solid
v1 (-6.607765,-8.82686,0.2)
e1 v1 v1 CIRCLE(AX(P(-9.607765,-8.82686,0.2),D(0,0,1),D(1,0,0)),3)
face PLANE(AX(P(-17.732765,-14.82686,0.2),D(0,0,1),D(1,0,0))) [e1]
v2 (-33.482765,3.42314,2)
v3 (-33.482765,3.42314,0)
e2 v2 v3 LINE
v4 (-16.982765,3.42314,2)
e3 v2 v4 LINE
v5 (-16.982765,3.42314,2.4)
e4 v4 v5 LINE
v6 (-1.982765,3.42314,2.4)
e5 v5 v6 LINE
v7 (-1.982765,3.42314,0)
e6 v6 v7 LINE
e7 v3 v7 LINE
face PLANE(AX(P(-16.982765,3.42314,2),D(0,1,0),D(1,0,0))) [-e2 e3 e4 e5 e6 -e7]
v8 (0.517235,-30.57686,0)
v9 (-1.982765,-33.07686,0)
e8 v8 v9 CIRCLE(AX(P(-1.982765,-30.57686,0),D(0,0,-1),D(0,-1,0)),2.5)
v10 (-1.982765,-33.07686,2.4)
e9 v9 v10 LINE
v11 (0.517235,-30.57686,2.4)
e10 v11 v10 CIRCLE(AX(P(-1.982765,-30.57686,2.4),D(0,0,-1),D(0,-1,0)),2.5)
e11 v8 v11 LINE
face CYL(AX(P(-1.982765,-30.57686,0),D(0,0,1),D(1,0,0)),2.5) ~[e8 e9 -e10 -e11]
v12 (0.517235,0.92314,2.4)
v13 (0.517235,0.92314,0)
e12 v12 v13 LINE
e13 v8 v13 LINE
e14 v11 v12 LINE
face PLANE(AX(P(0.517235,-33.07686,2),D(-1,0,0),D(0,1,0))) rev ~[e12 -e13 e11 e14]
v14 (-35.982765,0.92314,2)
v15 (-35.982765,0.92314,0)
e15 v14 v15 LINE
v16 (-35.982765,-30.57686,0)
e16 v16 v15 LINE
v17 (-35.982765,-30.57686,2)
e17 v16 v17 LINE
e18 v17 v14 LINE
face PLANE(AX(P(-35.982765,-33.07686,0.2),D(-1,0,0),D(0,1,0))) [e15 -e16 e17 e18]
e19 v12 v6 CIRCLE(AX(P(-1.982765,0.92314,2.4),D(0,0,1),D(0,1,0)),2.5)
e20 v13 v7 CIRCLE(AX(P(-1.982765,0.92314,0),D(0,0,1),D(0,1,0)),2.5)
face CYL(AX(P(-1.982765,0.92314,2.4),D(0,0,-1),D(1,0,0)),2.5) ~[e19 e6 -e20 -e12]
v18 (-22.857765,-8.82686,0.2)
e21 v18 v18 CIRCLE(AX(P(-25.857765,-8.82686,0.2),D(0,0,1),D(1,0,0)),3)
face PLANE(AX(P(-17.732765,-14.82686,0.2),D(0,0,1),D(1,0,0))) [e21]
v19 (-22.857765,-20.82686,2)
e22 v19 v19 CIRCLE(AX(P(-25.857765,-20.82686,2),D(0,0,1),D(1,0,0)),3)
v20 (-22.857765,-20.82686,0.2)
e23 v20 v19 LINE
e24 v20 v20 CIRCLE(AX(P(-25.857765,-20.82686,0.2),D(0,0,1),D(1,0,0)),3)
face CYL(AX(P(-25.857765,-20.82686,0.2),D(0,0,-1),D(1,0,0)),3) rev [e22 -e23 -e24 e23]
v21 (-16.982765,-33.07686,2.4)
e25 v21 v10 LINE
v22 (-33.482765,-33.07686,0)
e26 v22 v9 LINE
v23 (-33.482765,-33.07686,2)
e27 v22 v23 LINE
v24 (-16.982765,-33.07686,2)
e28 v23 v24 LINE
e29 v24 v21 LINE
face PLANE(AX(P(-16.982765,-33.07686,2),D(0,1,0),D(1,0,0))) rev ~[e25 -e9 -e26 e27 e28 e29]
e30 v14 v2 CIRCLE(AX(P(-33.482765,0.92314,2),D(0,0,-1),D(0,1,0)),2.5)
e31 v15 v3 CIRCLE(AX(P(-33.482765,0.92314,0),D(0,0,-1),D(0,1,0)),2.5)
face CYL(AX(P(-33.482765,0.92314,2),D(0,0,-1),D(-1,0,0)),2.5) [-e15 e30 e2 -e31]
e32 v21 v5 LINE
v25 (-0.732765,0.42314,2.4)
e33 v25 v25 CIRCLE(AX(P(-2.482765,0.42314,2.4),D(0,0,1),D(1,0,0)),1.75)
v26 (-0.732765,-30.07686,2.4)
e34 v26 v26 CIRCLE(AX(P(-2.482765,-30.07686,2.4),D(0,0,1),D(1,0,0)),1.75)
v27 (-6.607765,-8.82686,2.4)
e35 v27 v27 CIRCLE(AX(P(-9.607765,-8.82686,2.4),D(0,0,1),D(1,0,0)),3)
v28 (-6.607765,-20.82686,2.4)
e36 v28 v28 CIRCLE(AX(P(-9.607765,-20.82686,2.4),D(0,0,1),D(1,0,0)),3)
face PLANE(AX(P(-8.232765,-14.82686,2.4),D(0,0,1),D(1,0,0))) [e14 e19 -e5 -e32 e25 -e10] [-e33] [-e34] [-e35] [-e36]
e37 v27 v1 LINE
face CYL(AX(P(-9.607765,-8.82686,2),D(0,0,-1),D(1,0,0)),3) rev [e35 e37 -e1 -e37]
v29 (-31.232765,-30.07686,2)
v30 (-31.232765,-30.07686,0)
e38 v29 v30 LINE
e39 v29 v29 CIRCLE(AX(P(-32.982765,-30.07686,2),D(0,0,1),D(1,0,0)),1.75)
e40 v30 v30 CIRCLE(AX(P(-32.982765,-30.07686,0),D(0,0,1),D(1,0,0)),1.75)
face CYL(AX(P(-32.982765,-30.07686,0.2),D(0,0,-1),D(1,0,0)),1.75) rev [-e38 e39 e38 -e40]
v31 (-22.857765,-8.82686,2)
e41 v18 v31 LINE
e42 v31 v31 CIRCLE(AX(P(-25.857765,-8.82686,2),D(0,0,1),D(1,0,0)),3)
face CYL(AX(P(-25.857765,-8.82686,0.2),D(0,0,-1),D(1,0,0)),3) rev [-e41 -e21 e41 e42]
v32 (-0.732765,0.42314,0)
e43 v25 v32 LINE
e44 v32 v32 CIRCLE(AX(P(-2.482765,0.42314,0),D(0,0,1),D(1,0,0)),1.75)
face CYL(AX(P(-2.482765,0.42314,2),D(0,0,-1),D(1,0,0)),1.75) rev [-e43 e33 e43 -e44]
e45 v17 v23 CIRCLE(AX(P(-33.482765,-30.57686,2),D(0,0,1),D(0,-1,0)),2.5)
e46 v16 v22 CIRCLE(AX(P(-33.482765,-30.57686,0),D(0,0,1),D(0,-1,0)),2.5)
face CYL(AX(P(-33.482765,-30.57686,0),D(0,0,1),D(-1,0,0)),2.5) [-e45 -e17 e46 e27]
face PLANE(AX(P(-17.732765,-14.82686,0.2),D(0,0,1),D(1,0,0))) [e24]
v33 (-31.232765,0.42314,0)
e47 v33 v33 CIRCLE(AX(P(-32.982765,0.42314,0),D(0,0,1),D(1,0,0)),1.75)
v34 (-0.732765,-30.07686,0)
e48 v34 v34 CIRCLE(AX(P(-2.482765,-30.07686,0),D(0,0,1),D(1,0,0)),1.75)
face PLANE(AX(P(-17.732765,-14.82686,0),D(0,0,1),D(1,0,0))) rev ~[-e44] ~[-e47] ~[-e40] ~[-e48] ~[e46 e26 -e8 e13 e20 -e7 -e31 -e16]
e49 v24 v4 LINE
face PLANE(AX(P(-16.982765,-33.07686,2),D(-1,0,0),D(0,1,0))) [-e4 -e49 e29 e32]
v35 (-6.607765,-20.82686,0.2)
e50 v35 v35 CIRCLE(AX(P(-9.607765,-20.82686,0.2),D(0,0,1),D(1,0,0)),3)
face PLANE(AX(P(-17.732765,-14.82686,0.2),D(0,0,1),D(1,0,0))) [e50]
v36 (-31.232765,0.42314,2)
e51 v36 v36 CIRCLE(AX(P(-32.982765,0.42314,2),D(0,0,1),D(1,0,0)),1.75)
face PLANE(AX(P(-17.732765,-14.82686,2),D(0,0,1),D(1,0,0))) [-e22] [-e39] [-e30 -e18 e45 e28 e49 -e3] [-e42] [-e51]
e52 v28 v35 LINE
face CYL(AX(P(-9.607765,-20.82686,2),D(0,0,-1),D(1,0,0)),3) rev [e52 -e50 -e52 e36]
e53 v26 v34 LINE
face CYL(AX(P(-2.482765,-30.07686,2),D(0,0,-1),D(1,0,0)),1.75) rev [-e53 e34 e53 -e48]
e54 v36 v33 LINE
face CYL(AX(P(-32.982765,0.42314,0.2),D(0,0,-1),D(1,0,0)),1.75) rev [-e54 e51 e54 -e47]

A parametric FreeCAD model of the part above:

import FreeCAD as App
import Part
import Sketcher
from FreeCAD import Vector


def edges_at(feature, points):
    """Names of the edges that pass closest to the given points."""
    edges = feature.Shape.Edges
    near = lambda p: min(range(len(edges)), key=lambda i: edges[i].distToShape(Part.Vertex(*p))[0])
    return sorted({f"Edge{near(p) + 1}" for p in points})

doc = App.newDocument("Part")
params = doc.addObject("Spreadsheet::Sheet", "Params")
for row, (alias, value) in enumerate([
    ("sketch1_diameter", "3.5 mm"),
    ("sketch1_width", "36.5 mm"),
    ("pad1_length", "0.2 mm"),
    ("sketch2_diameter", "6 mm"),
    ("sketch2_diameter2", "3.5 mm"),
    ("sketch2_width", "36.5 mm"),
    ("pad2_length", "1.8 mm"),
    ("sketch3_diameter", "6 mm"),
    ("sketch3_diameter2", "3.5 mm"),
    ("sketch3_width", "17.5 mm"),
    ("sketch3_height", "36.5 mm"),
    ("pad3_length", "0.4 mm"),
    ("fillet_radius", "2.5 mm"),
], start=1):
    params.set(f"A{row}", alias)
    params.set(f"B{row}", "=" + value)
    params.setAlias(f"B{row}", alias)

body = doc.addObject("PartDesign::Body", "Body")

# Sketch on XY plane
sketch1 = body.newObject("Sketcher::SketchObject", "Sketch")
sketch1.AttachmentSupport = (doc.getObject("XY_Plane"), [""])
sketch1.MapMode = "FlatFace"
sketch1.addGeometry(Part.LineSegment(Vector(-35.982765, 3.42314, 0), Vector(-35.982765, -33.07686, 0)), False)
sketch1.addGeometry(Part.LineSegment(Vector(-35.982765, -33.07686, 0), Vector(0.517235, -33.07686, 0)), False)
sketch1.addGeometry(Part.LineSegment(Vector(0.517235, -33.07686, 0), Vector(0.517235, 3.42314, 0)), False)
sketch1.addGeometry(Part.LineSegment(Vector(0.517235, 3.42314, 0), Vector(-35.982765, 3.42314, 0)), False)
sketch1.addGeometry(Part.Circle(Vector(-32.982765, -30.07686, 0), Vector(0, 0, 1), 1.75), False)
sketch1.addGeometry(Part.Circle(Vector(-2.482765, -30.07686, 0), Vector(0, 0, 1), 1.75), False)
sketch1.addGeometry(Part.Circle(Vector(-32.982765, 0.42314, 0), Vector(0, 0, 1), 1.75), False)
sketch1.addGeometry(Part.Circle(Vector(-2.482765, 0.42314, 0), Vector(0, 0, 1), 1.75), False)
sketch1.addConstraint(Sketcher.Constraint("Coincident", 0, 2, 1, 1))
sketch1.addConstraint(Sketcher.Constraint("Coincident", 1, 2, 2, 1))
sketch1.addConstraint(Sketcher.Constraint("Coincident", 2, 2, 3, 1))
sketch1.addConstraint(Sketcher.Constraint("Coincident", 3, 2, 0, 1))
sketch1.addConstraint(Sketcher.Constraint("Vertical", 0))
sketch1.addConstraint(Sketcher.Constraint("Horizontal", 1))
sketch1.addConstraint(Sketcher.Constraint("Vertical", 2))
sketch1.addConstraint(Sketcher.Constraint("Horizontal", 3))
sketch1.addConstraint(Sketcher.Constraint("Equal", 4, 5))
sketch1.addConstraint(Sketcher.Constraint("Equal", 5, 6))
sketch1.addConstraint(Sketcher.Constraint("Equal", 6, 7))
sketch1.addConstraint(Sketcher.Constraint("Horizontal", 4, 3, 5, 3))
sketch1.addConstraint(Sketcher.Constraint("Horizontal", 6, 3, 7, 3))
sketch1.addConstraint(Sketcher.Constraint("Vertical", 4, 3, 6, 3))
sketch1.addConstraint(Sketcher.Constraint("Vertical", 5, 3, 7, 3))
sketch1.addConstraint(Sketcher.Constraint("Equal", 3, 0))
sketch1.addConstraint(Sketcher.Constraint("Diameter", 4, 3.5))
sketch1.addConstraint(Sketcher.Constraint("DistanceX", 1, 1, 1, 2, 36.5))
sketch1.addConstraint(Sketcher.Constraint("DistanceX", 0, 2, 4, 3, 3.0))
sketch1.addConstraint(Sketcher.Constraint("DistanceY", 0, 2, 4, 3, 3.0))
sketch1.addConstraint(Sketcher.Constraint("DistanceX", 5, 3, 1, 2, 3.0))
sketch1.addConstraint(Sketcher.Constraint("DistanceY", 7, 3, 2, 2, 3.0))
sketch1.addConstraint(Sketcher.Constraint("DistanceY", 4, 3, -1, 1, 30.07686))
sketch1.addConstraint(Sketcher.Constraint("DistanceX", 4, 3, -1, 1, 32.982765))
sketch1.setExpression("Constraints[16]", "Params.sketch1_diameter")
sketch1.setExpression("Constraints[17]", "Params.sketch1_width")
pad1 = body.newObject("PartDesign::Pad", "Pad")
pad1.Profile = sketch1
pad1.setExpression("Length", "Params.pad1_length")

# Sketch on XY plane
sketch2 = body.newObject("Sketcher::SketchObject", "Sketch001")
sketch2.AttachmentSupport = (doc.getObject("XY_Plane"), [""])
sketch2.MapMode = "FlatFace"
sketch2.AttachmentOffset = App.Placement(Vector(0, 0, 0.2), App.Rotation())
sketch2.addGeometry(Part.LineSegment(Vector(-35.982765, 3.42314, 0), Vector(-35.982765, -33.07686, 0)), False)
sketch2.addGeometry(Part.LineSegment(Vector(-35.982765, -33.07686, 0), Vector(0.517235, -33.07686, 0)), False)
sketch2.addGeometry(Part.LineSegment(Vector(0.517235, -33.07686, 0), Vector(0.517235, 3.42314, 0)), False)
sketch2.addGeometry(Part.LineSegment(Vector(0.517235, 3.42314, 0), Vector(-35.982765, 3.42314, 0)), False)
sketch2.addGeometry(Part.Circle(Vector(-32.982765, -30.07686, 0), Vector(0, 0, 1), 1.75), False)
sketch2.addGeometry(Part.Circle(Vector(-25.857765, -20.82686, 0), Vector(0, 0, 1), 3), False)
sketch2.addGeometry(Part.Circle(Vector(-2.482765, -30.07686, 0), Vector(0, 0, 1), 1.75), False)
sketch2.addGeometry(Part.Circle(Vector(-9.607765, -20.82686, 0), Vector(0, 0, 1), 3), False)
sketch2.addGeometry(Part.Circle(Vector(-25.857765, -8.82686, 0), Vector(0, 0, 1), 3), False)
sketch2.addGeometry(Part.Circle(Vector(-32.982765, 0.42314, 0), Vector(0, 0, 1), 1.75), False)
sketch2.addGeometry(Part.Circle(Vector(-9.607765, -8.82686, 0), Vector(0, 0, 1), 3), False)
sketch2.addGeometry(Part.Circle(Vector(-2.482765, 0.42314, 0), Vector(0, 0, 1), 1.75), False)
sketch2.addConstraint(Sketcher.Constraint("Coincident", 0, 2, 1, 1))
sketch2.addConstraint(Sketcher.Constraint("Coincident", 1, 2, 2, 1))
sketch2.addConstraint(Sketcher.Constraint("Coincident", 2, 2, 3, 1))
sketch2.addConstraint(Sketcher.Constraint("Coincident", 3, 2, 0, 1))
sketch2.addConstraint(Sketcher.Constraint("Vertical", 0))
sketch2.addConstraint(Sketcher.Constraint("Horizontal", 1))
sketch2.addConstraint(Sketcher.Constraint("Vertical", 2))
sketch2.addConstraint(Sketcher.Constraint("Horizontal", 3))
sketch2.addConstraint(Sketcher.Constraint("Equal", 4, 6))
sketch2.addConstraint(Sketcher.Constraint("Equal", 5, 7))
sketch2.addConstraint(Sketcher.Constraint("Equal", 7, 8))
sketch2.addConstraint(Sketcher.Constraint("Equal", 6, 9))
sketch2.addConstraint(Sketcher.Constraint("Equal", 8, 10))
sketch2.addConstraint(Sketcher.Constraint("Equal", 9, 11))
sketch2.addConstraint(Sketcher.Constraint("Horizontal", 4, 3, 6, 3))
sketch2.addConstraint(Sketcher.Constraint("Horizontal", 5, 3, 7, 3))
sketch2.addConstraint(Sketcher.Constraint("Horizontal", 8, 3, 10, 3))
sketch2.addConstraint(Sketcher.Constraint("Horizontal", 9, 3, 11, 3))
sketch2.addConstraint(Sketcher.Constraint("Vertical", 5, 3, 8, 3))
sketch2.addConstraint(Sketcher.Constraint("Vertical", 4, 3, 9, 3))
sketch2.addConstraint(Sketcher.Constraint("Vertical", 7, 3, 10, 3))
sketch2.addConstraint(Sketcher.Constraint("Vertical", 6, 3, 11, 3))
sketch2.addConstraint(Sketcher.Constraint("Equal", 3, 0))
sketch2.addConstraint(Sketcher.Constraint("Diameter", 5, 6.0))
sketch2.addConstraint(Sketcher.Constraint("Diameter", 4, 3.5))
sketch2.addConstraint(Sketcher.Constraint("DistanceX", 1, 1, 1, 2, 36.5))
sketch2.addConstraint(Sketcher.Constraint("DistanceY", 5, 3, 8, 3, 12.0))
sketch2.addConstraint(Sketcher.Constraint("DistanceX", 0, 2, 4, 3, 3.0))
sketch2.addConstraint(Sketcher.Constraint("DistanceY", 0, 2, 4, 3, 3.0))
sketch2.addConstraint(Sketcher.Constraint("DistanceX", 6, 3, 1, 2, 3.0))
sketch2.addConstraint(Sketcher.Constraint("DistanceY", 11, 3, 2, 2, 3.0))
sketch2.addConstraint(Sketcher.Constraint("DistanceY", 4, 3, 5, 3, 9.25))
sketch2.addConstraint(Sketcher.Constraint("DistanceX", 5, 3, 7, 3, 16.25))
sketch2.addConstraint(Sketcher.Constraint("DistanceX", 4, 3, 5, 3, 7.125))
sketch2.addConstraint(Sketcher.Constraint("DistanceY", 4, 3, -1, 1, 30.07686))
sketch2.addConstraint(Sketcher.Constraint("DistanceX", 4, 3, -1, 1, 32.982765))
sketch2.setExpression("Constraints[23]", "Params.sketch2_diameter")
sketch2.setExpression("Constraints[24]", "Params.sketch2_diameter2")
sketch2.setExpression("Constraints[25]", "Params.sketch2_width")
pad2 = body.newObject("PartDesign::Pad", "Pad001")
pad2.Profile = sketch2
pad2.setExpression("Length", "Params.pad2_length")

# Sketch on XY plane
sketch3 = body.newObject("Sketcher::SketchObject", "Sketch002")
sketch3.AttachmentSupport = (doc.getObject("XY_Plane"), [""])
sketch3.MapMode = "FlatFace"
sketch3.AttachmentOffset = App.Placement(Vector(0, 0, 2), App.Rotation())
sketch3.addGeometry(Part.LineSegment(Vector(-16.982765, 3.42314, 0), Vector(-16.982765, -33.07686, 0)), False)
sketch3.addGeometry(Part.LineSegment(Vector(-16.982765, -33.07686, 0), Vector(0.517235, -33.07686, 0)), False)
sketch3.addGeometry(Part.LineSegment(Vector(0.517235, -33.07686, 0), Vector(0.517235, 3.42314, 0)), False)
sketch3.addGeometry(Part.LineSegment(Vector(0.517235, 3.42314, 0), Vector(-16.982765, 3.42314, 0)), False)
sketch3.addGeometry(Part.Circle(Vector(-9.607765, -20.82686, 0), Vector(0, 0, 1), 3), False)
sketch3.addGeometry(Part.Circle(Vector(-2.482765, -30.07686, 0), Vector(0, 0, 1), 1.75), False)
sketch3.addGeometry(Part.Circle(Vector(-9.607765, -8.82686, 0), Vector(0, 0, 1), 3), False)
sketch3.addGeometry(Part.Circle(Vector(-2.482765, 0.42314, 0), Vector(0, 0, 1), 1.75), False)
sketch3.addConstraint(Sketcher.Constraint("Coincident", 0, 2, 1, 1))
sketch3.addConstraint(Sketcher.Constraint("Coincident", 1, 2, 2, 1))
sketch3.addConstraint(Sketcher.Constraint("Coincident", 2, 2, 3, 1))
sketch3.addConstraint(Sketcher.Constraint("Coincident", 3, 2, 0, 1))
sketch3.addConstraint(Sketcher.Constraint("Vertical", 0))
sketch3.addConstraint(Sketcher.Constraint("Horizontal", 1))
sketch3.addConstraint(Sketcher.Constraint("Vertical", 2))
sketch3.addConstraint(Sketcher.Constraint("Horizontal", 3))
sketch3.addConstraint(Sketcher.Constraint("Equal", 4, 6))
sketch3.addConstraint(Sketcher.Constraint("Equal", 5, 7))
sketch3.addConstraint(Sketcher.Constraint("Vertical", 4, 3, 6, 3))
sketch3.addConstraint(Sketcher.Constraint("Vertical", 5, 3, 7, 3))
sketch3.addConstraint(Sketcher.Constraint("Diameter", 4, 6.0))
sketch3.addConstraint(Sketcher.Constraint("Diameter", 5, 3.5))
sketch3.addConstraint(Sketcher.Constraint("DistanceX", 1, 1, 1, 2, 17.5))
sketch3.addConstraint(Sketcher.Constraint("DistanceY", 0, 2, 0, 1, 36.5))
sketch3.addConstraint(Sketcher.Constraint("DistanceY", 4, 3, 6, 3, 12.0))
sketch3.addConstraint(Sketcher.Constraint("DistanceY", 0, 2, 5, 3, 3.0))
sketch3.addConstraint(Sketcher.Constraint("DistanceX", 5, 3, 1, 2, 3.0))
sketch3.addConstraint(Sketcher.Constraint("DistanceY", 7, 3, 2, 2, 3.0))
sketch3.addConstraint(Sketcher.Constraint("DistanceY", 5, 3, 4, 3, 9.25))
sketch3.addConstraint(Sketcher.Constraint("DistanceX", 4, 3, 5, 3, 7.125))
sketch3.addConstraint(Sketcher.Constraint("DistanceY", 4, 3, -1, 1, 20.82686))
sketch3.addConstraint(Sketcher.Constraint("DistanceX", 4, 3, -1, 1, 9.607765))
sketch3.setExpression("Constraints[12]", "Params.sketch3_diameter")
sketch3.setExpression("Constraints[13]", "Params.sketch3_diameter2")
sketch3.setExpression("Constraints[14]", "Params.sketch3_width")
sketch3.setExpression("Constraints[15]", "Params.sketch3_height")
pad3 = body.newObject("PartDesign::Pad", "Pad002")
pad3.Profile = sketch3
pad3.setExpression("Length", "Params.pad3_length")
doc.recompute()

fillet = body.newObject("PartDesign::Fillet", "Fillet")
fillet.Base = (pad3, edges_at(pad3, [
    (-35.983, 3.423, 1),
    (-35.983, -33.077, 1),
    (0.517, -33.077, 1.2),
    (0.517, 3.423, 1.2),
]))
fillet.setExpression("Radius", "Params.fillet_radius")

doc.recompute()
